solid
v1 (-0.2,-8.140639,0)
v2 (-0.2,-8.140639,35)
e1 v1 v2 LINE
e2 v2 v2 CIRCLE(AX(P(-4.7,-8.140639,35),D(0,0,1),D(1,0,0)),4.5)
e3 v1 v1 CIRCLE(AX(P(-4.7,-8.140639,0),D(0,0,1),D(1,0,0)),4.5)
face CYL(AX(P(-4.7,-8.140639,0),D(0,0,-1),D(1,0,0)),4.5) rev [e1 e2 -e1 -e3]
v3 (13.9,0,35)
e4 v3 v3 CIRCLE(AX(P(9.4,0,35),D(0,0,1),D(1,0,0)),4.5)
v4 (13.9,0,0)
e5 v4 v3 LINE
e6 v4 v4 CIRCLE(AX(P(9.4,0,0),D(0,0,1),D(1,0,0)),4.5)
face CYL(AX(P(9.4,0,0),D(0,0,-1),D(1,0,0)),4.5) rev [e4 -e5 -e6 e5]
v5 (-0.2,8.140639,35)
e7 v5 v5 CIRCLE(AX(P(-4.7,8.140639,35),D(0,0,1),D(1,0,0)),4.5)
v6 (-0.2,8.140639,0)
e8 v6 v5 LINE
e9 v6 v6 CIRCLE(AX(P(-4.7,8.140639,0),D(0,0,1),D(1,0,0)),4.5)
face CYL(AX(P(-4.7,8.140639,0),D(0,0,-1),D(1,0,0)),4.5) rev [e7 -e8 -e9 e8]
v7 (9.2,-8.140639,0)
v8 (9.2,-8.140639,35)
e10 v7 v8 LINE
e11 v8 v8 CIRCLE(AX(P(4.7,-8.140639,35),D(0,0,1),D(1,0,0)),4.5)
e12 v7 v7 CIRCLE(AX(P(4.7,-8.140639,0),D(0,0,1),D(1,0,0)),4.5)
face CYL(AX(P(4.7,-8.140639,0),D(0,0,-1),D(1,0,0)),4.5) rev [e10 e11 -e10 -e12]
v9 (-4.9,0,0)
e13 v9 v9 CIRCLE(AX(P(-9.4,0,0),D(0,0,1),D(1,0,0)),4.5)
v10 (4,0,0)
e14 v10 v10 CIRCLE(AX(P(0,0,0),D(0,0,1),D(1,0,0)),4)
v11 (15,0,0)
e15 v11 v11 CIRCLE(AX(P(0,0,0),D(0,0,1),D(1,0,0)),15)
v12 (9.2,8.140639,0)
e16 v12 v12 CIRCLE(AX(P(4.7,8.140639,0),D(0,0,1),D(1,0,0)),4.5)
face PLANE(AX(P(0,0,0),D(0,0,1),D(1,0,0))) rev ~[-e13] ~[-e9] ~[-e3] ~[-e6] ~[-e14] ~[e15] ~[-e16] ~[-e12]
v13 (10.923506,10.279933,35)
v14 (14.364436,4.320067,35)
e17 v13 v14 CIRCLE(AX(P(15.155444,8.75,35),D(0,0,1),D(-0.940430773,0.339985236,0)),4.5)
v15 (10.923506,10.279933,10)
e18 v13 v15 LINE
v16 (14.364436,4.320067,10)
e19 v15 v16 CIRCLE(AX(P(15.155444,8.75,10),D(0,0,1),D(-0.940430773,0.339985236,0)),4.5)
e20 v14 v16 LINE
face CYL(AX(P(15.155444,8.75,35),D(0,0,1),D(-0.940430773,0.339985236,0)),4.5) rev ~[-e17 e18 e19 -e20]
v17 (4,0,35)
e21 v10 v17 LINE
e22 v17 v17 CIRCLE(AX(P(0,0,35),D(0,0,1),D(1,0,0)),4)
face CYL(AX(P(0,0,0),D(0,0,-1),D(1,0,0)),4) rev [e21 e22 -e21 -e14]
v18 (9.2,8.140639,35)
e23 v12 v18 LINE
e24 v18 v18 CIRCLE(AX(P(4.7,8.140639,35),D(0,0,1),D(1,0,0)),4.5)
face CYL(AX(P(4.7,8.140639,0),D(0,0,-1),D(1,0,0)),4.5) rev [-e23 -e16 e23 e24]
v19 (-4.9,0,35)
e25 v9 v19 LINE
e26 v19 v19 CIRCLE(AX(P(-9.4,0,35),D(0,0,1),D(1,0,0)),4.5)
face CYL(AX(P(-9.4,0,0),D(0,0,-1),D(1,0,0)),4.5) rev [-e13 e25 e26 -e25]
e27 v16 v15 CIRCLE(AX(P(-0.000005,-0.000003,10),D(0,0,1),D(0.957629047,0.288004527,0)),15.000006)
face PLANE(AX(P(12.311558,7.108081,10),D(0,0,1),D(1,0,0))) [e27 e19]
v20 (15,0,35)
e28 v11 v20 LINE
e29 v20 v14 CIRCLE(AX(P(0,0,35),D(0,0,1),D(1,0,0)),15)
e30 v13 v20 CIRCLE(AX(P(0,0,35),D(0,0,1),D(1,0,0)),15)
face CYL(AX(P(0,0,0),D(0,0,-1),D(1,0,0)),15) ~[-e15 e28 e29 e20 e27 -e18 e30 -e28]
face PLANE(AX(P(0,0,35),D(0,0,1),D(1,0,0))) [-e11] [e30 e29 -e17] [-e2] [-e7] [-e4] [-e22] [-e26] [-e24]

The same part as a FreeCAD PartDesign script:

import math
import FreeCAD as App
import Part
import Sketcher
from FreeCAD import Vector

doc = App.newDocument("Part")
body = doc.addObject("PartDesign::Body", "Body")

sketch1 = body.newObject("Sketcher::SketchObject", "Sketch")
sketch1.AttachmentSupport = (doc.getObject("XY_Plane"), [""])
sketch1.MapMode = "FlatFace"
sketch1.addGeometry(Part.Circle(Vector(0, 0, 0), Vector(0, 0, 1), 15), False)
sketch1.addGeometry(Part.Circle(Vector(-4.7, -8.140639, 0), Vector(0, 0, 1), 4.5), False)
sketch1.addGeometry(Part.Circle(Vector(4.7, -8.140639, 0), Vector(0, 0, 1), 4.5), False)
sketch1.addGeometry(Part.Circle(Vector(-9.4, 0, 0), Vector(0, 0, 1), 4.5), False)
sketch1.addGeometry(Part.Circle(Vector(-4.7, 8.140639, 0), Vector(0, 0, 1), 4.5), False)
sketch1.addGeometry(Part.Circle(Vector(0, 0, 0), Vector(0, 0, 1), 4), False)
sketch1.addGeometry(Part.Circle(Vector(9.4, 0, 0), Vector(0, 0, 1), 4.5), False)
sketch1.addGeometry(Part.Circle(Vector(4.7, 8.140639, 0), Vector(0, 0, 1), 4.5), False)
sketch1.addConstraint(Sketcher.Constraint("Coincident", 0, 3, -1, 1))
sketch1.addConstraint(Sketcher.Constraint("Coincident", 5, 3, -1, 1))
sketch1.addConstraint(Sketcher.Constraint("Equal", 1, 2))
sketch1.addConstraint(Sketcher.Constraint("Equal", 2, 3))
sketch1.addConstraint(Sketcher.Constraint("Equal", 3, 4))
sketch1.addConstraint(Sketcher.Constraint("Equal", 4, 6))
sketch1.addConstraint(Sketcher.Constraint("Equal", 6, 7))
sketch1.addConstraint(Sketcher.Constraint("Symmetric", 2, 3, 4, 3, -1, 1))
sketch1.addConstraint(Sketcher.Constraint("Symmetric", 3, 3, 6, 3, -1, 1))
sketch1.addConstraint(Sketcher.Constraint("Symmetric", 1, 3, 7, 3, -1, 1))
sketch1.addConstraint(Sketcher.Constraint("Symmetric", 1, 3, 2, 3, -2))
sketch1.addConstraint(Sketcher.Constraint("PointOnObject", 3, 3, -1))
sketch1.addConstraint(Sketcher.Constraint("Diameter", 0, 30.0))
sketch1.addConstraint(Sketcher.Constraint("Diameter", 1, 9.0))
sketch1.addConstraint(Sketcher.Constraint("Diameter", 5, 8.0))
sketch1.addConstraint(Sketcher.Constraint("DistanceX", 1, 3, -1, 1, 4.7))
sketch1.addConstraint(Sketcher.Constraint("DistanceX", 3, 3, -1, 1, 9.4))
sketch1.addConstraint(Sketcher.Constraint("DistanceY", 1, 3, -1, 1, 8.140639))
pad1 = body.newObject("PartDesign::Pad", "Pad")
pad1.Profile = sketch1
pad1.Length = 35

sketch2 = body.newObject("Sketcher::SketchObject", "Sketch001")
sketch2.AttachmentSupport = (doc.getObject("XY_Plane"), [""])
sketch2.MapMode = "FlatFace"
sketch2.AttachmentOffset = App.Placement(Vector(0, 0, 35), App.Rotation())
sketch2.addGeometry(Part.ArcOfCircle(Part.Circle(Vector(-0.000005, -0.000003, 0), Vector(0, 0, 1), 15.000006), math.radians(16.738528), math.radians(43.261469)), False)
sketch2.addGeometry(Part.ArcOfCircle(Part.Circle(Vector(15.155444, 8.75, 0), Vector(0, 0, 1), 4.5), math.radians(160.124025), math.radians(259.875971)), False)
sketch2.addConstraint(Sketcher.Constraint("Coincident", 0, 1, 1, 2))
sketch2.addConstraint(Sketcher.Constraint("Coincident", 1, 1, 0, 2))
sketch2.addConstraint(Sketcher.Constraint("Coincident", 0, 3, -1, 1))
sketch2.addConstraint(Sketcher.Constraint("Radius", 1, 4.5))
sketch2.addConstraint(Sketcher.Constraint("DistanceY", -1, 1, 1, 3, 8.75))
sketch2.addConstraint(Sketcher.Constraint("Radius", 0, 15.000006))
sketch2.addConstraint(Sketcher.Constraint("DistanceX", 0, 3, 1, 3, 15.155449))
pocket1 = body.newObject("PartDesign::Pocket", "Pocket")
pocket1.Profile = sketch2
pocket1.Length = 25

doc.recompute()
